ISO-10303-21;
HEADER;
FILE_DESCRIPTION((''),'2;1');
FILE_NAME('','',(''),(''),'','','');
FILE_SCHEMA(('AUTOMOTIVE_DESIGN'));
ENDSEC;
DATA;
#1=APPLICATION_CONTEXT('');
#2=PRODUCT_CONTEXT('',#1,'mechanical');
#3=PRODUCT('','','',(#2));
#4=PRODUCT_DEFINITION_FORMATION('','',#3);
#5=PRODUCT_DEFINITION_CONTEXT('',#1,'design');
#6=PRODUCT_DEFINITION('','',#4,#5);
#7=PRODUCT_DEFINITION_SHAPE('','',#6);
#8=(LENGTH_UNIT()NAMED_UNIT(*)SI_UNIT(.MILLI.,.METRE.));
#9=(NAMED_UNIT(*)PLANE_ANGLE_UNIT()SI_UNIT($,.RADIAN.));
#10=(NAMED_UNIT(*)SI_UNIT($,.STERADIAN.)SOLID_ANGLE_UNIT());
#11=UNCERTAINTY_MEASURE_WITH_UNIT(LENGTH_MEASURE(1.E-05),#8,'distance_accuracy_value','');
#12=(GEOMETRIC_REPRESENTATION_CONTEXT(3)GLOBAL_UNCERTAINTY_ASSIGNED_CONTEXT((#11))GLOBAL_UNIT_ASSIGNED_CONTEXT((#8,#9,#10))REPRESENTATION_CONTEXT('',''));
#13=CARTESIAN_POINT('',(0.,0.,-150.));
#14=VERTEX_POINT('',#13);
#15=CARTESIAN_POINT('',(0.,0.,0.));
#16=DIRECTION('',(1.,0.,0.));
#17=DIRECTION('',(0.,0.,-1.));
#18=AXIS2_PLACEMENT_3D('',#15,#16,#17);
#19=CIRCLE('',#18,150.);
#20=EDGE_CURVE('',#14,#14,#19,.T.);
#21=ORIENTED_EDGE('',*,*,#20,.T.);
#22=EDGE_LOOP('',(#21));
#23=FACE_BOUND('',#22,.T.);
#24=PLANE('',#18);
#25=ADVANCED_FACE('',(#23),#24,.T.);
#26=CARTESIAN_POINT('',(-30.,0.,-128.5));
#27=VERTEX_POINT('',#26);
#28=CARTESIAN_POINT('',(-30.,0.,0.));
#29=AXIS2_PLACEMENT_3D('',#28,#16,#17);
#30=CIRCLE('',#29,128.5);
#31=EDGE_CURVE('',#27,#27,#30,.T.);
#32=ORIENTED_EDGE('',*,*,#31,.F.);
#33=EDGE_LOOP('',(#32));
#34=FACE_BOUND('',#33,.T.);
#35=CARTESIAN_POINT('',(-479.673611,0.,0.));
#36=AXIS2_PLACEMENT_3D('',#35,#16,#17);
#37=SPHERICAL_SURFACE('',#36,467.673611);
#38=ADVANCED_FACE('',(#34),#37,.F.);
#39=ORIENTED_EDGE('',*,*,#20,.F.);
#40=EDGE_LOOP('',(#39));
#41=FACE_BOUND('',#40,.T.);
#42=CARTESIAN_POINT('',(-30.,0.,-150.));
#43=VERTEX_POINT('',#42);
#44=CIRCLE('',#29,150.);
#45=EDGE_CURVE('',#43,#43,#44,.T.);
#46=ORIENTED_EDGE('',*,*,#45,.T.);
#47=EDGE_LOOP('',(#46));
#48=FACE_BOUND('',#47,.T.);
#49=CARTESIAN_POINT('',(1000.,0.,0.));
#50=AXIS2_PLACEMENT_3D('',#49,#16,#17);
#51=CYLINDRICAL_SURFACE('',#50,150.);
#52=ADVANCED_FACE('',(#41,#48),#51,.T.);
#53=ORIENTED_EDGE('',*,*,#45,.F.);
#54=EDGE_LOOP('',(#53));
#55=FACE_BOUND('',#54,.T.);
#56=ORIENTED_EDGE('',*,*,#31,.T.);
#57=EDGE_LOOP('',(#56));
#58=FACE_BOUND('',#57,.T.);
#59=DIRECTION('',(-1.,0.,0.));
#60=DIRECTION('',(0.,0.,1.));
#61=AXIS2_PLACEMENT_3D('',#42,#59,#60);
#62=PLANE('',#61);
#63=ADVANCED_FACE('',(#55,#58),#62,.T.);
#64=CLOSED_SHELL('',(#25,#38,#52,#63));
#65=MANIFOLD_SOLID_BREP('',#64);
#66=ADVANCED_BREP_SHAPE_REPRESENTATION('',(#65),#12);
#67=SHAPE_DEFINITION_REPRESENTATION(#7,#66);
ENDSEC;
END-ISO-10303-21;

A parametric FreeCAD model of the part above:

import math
import FreeCAD as App
import Part
import Sketcher
from FreeCAD import Vector

doc = App.newDocument("Part")
body = doc.addObject("PartDesign::Body", "Body")

sketch1 = body.newObject("Sketcher::SketchObject", "Sketch")
sketch1.AttachmentSupport = (doc.getObject("XZ_Plane"), [""])
sketch1.MapMode = "FlatFace"
sketch1.addGeometry(Part.LineSegment(Vector(0, 0, 0), Vector(0, -150, 0)), False)
sketch1.addGeometry(Part.LineSegment(Vector(0, -150, 0), Vector(-30, -150, 0)), False)
sketch1.addGeometry(Part.LineSegment(Vector(-30, -150, 0), Vector(-30, -128, 0)), False)
sketch1.addGeometry(Part.ArcOfCircle(Part.Circle(Vector(-480, 0, 0), Vector(0, 0, 1), 468), math.radians(-15.95), math.radians(0)), False)
sketch1.addGeometry(Part.LineSegment(Vector(-12, 0, 0), Vector(0, 0, 0)), False)
sketch1.addConstraint(Sketcher.Constraint("Coincident", 0, 2, 1, 1))
sketch1.addConstraint(Sketcher.Constraint("Coincident", 1, 2, 2, 1))
sketch1.addConstraint(Sketcher.Constraint("Coincident", 2, 2, 3, 1))
sketch1.addConstraint(Sketcher.Constraint("Coincident", 3, 2, 4, 1))
sketch1.addConstraint(Sketcher.Constraint("Coincident", 4, 2, 0, 1))
sketch1.addConstraint(Sketcher.Constraint("Vertical", 0))
sketch1.addConstraint(Sketcher.Constraint("Horizontal", 1))
sketch1.addConstraint(Sketcher.Constraint("Vertical", 2))
sketch1.addConstraint(Sketcher.Constraint("Horizontal", 4))
sketch1.addConstraint(Sketcher.Constraint("Coincident", 4, 2, -1, 1))
sketch1.addConstraint(Sketcher.Constraint("PointOnObject", 3, 3, -1))
sketch1.addConstraint(Sketcher.Constraint("DistanceX", 1, 2, 1, 1, 30.0))
sketch1.addConstraint(Sketcher.Constraint("DistanceX", 4, 1, 4, 2, 12.0))
sketch1.addConstraint(Sketcher.Constraint("DistanceY", 0, 2, 0, 1, 150.0))
sketch1.addConstraint(Sketcher.Constraint("DistanceY", 2, 1, 2, 2, 21.5))
revolution = body.newObject("PartDesign::Revolution", "Revolution")
revolution.Profile = sketch1
revolution.ReferenceAxis = (sketch1, ["H_Axis"])
revolution.Angle = 360

doc.recompute()
